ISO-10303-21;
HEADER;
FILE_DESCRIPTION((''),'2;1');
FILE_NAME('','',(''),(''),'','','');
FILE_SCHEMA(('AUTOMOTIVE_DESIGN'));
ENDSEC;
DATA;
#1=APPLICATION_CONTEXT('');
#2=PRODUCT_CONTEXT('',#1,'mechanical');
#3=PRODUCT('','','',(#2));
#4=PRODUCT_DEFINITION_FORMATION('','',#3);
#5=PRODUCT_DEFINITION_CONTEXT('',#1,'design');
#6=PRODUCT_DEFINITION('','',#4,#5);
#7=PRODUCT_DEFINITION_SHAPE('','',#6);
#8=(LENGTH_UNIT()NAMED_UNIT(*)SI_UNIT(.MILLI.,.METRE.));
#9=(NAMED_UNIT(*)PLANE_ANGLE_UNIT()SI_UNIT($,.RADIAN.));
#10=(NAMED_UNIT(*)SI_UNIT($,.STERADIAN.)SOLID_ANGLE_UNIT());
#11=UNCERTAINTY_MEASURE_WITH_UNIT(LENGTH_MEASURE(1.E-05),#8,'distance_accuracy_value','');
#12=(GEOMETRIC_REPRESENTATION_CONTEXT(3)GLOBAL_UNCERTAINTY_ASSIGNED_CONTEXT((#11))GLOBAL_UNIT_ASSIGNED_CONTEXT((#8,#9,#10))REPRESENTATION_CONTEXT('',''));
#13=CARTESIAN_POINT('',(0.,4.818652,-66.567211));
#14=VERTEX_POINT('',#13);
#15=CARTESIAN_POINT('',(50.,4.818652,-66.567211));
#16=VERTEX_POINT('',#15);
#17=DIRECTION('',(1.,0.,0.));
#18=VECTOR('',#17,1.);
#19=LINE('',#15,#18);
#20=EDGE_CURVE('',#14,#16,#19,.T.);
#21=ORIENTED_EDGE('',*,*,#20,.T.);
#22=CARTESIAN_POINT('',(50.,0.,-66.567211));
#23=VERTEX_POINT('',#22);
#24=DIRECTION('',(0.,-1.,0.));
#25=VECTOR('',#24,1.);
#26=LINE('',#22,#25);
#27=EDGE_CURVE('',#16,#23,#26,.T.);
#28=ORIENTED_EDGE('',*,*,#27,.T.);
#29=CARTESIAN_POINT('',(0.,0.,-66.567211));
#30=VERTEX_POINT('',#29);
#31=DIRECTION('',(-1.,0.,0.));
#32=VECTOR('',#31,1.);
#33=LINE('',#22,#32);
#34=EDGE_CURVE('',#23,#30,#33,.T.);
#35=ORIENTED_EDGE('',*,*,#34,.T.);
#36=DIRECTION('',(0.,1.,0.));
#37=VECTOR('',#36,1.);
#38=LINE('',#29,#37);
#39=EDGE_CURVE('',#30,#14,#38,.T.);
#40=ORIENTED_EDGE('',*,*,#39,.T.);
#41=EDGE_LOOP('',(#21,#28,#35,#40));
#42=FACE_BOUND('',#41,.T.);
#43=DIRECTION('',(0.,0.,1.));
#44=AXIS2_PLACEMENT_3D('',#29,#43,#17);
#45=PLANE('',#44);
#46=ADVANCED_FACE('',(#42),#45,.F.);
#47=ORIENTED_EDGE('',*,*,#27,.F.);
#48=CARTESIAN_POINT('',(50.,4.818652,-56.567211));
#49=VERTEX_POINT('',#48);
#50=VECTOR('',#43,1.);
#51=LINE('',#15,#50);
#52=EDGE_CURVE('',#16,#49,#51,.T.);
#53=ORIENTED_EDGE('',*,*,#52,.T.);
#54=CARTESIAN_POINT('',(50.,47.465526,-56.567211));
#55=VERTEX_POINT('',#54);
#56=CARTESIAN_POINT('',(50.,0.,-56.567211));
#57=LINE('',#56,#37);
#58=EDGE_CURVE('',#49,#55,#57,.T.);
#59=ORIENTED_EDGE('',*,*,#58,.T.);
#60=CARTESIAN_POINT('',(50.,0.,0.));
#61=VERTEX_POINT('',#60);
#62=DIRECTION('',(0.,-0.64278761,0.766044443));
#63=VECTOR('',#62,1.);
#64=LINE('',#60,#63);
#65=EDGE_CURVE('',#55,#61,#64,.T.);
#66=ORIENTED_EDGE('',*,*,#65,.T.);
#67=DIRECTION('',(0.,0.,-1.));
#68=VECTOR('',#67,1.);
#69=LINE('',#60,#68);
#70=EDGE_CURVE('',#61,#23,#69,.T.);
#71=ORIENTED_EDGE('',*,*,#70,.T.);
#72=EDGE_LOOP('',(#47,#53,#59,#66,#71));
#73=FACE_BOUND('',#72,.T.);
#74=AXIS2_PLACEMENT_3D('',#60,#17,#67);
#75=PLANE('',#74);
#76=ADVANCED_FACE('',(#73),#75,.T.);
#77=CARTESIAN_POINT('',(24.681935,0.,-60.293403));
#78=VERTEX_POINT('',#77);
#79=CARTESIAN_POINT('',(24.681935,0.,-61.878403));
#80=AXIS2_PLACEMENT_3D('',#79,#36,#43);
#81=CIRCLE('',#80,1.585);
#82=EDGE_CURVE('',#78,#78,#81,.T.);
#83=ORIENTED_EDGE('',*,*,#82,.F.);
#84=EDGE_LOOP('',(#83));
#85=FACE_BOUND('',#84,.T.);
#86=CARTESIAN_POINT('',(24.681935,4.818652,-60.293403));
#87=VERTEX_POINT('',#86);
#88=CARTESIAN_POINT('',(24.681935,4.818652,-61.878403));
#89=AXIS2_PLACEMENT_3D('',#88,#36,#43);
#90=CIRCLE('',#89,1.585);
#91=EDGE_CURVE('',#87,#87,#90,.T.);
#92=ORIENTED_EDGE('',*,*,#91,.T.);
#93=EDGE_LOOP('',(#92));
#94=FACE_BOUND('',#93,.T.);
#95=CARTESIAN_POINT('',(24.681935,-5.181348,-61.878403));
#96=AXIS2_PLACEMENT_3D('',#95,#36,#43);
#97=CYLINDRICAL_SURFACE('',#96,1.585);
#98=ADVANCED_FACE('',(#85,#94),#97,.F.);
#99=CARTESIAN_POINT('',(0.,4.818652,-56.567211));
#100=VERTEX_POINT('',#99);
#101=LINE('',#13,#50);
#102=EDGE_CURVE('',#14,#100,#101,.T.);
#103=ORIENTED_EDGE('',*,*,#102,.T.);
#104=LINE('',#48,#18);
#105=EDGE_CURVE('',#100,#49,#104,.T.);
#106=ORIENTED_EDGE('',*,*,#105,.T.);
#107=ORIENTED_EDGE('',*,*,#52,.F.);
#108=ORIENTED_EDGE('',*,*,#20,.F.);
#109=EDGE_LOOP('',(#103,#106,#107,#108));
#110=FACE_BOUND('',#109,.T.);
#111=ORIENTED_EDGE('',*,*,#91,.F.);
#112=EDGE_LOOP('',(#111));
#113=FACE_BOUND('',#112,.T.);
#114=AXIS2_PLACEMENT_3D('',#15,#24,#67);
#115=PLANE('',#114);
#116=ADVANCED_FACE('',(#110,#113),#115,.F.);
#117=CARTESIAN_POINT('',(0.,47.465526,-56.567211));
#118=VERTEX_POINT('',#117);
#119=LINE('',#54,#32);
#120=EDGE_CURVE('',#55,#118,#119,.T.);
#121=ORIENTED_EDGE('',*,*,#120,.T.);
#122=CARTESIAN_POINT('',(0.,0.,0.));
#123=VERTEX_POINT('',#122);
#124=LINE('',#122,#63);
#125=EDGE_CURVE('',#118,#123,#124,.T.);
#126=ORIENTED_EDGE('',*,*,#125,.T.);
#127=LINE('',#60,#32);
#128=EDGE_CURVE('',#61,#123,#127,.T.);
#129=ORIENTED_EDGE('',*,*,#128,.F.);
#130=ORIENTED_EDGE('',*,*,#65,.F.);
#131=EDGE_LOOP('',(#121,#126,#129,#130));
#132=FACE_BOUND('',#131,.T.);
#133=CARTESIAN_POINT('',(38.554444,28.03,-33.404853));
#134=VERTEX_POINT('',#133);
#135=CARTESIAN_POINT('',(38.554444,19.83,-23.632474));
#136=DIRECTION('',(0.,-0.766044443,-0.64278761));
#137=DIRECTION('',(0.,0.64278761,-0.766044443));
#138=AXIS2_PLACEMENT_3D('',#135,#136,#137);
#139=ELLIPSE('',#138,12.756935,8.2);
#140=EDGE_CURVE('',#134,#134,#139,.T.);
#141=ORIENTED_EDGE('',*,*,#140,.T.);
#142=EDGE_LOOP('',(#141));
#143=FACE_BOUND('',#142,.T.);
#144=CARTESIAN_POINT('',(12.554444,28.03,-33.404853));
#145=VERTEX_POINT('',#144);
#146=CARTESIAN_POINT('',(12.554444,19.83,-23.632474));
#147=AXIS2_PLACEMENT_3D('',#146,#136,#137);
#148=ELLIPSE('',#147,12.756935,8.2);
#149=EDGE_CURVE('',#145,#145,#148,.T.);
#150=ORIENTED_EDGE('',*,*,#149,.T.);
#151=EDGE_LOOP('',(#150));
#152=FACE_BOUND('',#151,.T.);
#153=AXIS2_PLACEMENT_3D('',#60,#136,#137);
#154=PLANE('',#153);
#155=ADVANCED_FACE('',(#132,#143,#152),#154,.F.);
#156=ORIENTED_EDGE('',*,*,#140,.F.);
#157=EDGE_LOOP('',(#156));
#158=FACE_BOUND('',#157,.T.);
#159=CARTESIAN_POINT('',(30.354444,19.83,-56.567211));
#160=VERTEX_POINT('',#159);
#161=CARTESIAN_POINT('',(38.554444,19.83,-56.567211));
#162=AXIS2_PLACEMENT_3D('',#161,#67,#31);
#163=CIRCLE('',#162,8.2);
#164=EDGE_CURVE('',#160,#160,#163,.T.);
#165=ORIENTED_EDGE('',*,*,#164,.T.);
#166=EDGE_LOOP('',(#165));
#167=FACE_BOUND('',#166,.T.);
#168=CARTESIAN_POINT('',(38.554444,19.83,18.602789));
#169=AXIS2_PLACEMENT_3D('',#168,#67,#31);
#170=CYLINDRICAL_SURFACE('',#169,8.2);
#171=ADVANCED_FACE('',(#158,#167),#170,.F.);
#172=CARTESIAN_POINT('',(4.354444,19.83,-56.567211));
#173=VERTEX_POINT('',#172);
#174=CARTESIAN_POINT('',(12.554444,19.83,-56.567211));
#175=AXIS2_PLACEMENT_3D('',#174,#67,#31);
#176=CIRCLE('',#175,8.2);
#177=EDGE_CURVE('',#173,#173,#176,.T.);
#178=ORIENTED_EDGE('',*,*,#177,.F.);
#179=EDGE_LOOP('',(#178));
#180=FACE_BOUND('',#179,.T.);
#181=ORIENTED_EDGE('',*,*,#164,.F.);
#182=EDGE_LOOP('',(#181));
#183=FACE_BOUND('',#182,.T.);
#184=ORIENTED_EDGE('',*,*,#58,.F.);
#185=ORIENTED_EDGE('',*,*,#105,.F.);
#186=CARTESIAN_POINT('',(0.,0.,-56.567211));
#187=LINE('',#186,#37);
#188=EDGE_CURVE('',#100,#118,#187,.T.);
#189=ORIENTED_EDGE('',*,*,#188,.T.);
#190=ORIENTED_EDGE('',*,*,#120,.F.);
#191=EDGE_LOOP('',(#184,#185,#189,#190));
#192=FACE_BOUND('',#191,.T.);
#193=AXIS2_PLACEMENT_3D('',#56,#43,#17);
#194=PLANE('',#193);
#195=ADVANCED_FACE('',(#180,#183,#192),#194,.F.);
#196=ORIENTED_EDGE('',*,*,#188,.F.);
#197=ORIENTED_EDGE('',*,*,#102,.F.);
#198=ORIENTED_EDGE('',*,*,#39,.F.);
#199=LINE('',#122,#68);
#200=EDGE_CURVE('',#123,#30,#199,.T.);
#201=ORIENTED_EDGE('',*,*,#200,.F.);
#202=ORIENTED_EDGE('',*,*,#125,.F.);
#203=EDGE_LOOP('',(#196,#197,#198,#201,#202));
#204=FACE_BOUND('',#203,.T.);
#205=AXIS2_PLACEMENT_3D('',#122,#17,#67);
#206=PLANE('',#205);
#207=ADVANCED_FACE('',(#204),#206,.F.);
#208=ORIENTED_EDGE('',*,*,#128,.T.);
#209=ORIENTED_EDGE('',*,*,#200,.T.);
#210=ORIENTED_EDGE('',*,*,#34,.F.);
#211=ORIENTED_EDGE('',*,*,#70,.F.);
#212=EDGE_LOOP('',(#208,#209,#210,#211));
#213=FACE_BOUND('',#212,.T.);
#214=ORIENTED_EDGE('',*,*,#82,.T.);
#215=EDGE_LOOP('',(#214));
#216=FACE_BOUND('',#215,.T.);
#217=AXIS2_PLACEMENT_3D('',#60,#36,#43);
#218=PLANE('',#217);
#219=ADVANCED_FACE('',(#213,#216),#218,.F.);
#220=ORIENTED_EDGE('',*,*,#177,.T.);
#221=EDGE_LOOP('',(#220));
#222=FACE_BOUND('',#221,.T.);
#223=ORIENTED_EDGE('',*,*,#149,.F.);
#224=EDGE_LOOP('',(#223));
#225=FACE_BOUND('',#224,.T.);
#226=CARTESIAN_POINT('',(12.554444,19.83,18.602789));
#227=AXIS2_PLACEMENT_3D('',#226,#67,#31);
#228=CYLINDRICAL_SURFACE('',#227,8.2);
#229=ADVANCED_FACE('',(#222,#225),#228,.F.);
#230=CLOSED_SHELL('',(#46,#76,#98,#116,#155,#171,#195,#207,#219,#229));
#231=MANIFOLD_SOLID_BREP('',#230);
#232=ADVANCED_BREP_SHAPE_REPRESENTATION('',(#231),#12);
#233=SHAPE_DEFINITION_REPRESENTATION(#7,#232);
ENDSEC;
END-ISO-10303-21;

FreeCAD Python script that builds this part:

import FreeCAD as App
import Part
import Sketcher
Q = App.Units.Quantity

doc = App.newDocument("Part")
body = doc.addObject("PartDesign::Body", "Body")

# Sketch on YZ plane
sketch1 = doc.addObject("Sketcher::SketchObject", "Sketch")
body.addObject(sketch1)
sketch1.AttachmentSupport = (doc.YZ_Plane, [""])
sketch1.MapMode = "FlatFace"
sketch1.addGeometry([
    Part.LineSegment(App.Vector(0, 0, 0), App.Vector(0, -57, 0)),
    Part.LineSegment(App.Vector(0, -57, 0), App.Vector(47, -57, 0)),
    Part.LineSegment(App.Vector(47, -57, 0), App.Vector(0, 0, 0)),
], False)
sketch1.addConstraint([
    Sketcher.Constraint("Coincident", 0, 2, 1, 1),
    Sketcher.Constraint("Coincident", 1, 2, 2, 1),
    Sketcher.Constraint("Coincident", 2, 2, 0, 1),
    Sketcher.Constraint("Vertical", 0),
    Sketcher.Constraint("Horizontal", 1),
    Sketcher.Constraint("Coincident", 2, 2, -1, 1),
    Sketcher.Constraint("Angle", 2, Q("130 deg")),
    Sketcher.Constraint("DistanceY", 0, 2, 0, 1, Q("56.567211 mm")),
])
pad1 = doc.addObject("PartDesign::Pad", "Pad")
body.addObject(pad1)
pad1.Profile = sketch1
pad1.Length = 50

# Sketch on XY plane
sketch2 = doc.addObject("Sketcher::SketchObject", "Sketch001")
body.addObject(sketch2)
sketch2.AttachmentSupport = (doc.XY_Plane, [""])
sketch2.MapMode = "FlatFace"
sketch2.AttachmentOffset = App.Placement(App.Vector(0, 0, -56.567211), App.Rotation())
sketch2.addGeometry([
    Part.Circle(App.Vector(39, 20, 0), App.Vector(0, 0, 1), 8),
    Part.Circle(App.Vector(13, 20, 0), App.Vector(0, 0, 1), 8),
], False)
sketch2.addConstraint([
    Sketcher.Constraint("Equal", 0, 1),
    Sketcher.Constraint("Horizontal", 0, 3, 1, 3),
    Sketcher.Constraint("Diameter", 0, Q("16.4 mm")),
    Sketcher.Constraint("DistanceX", 1, 3, 0, 3, Q("26 mm")),
    Sketcher.Constraint("DistanceY", -1, 1, 0, 3, Q("19.83 mm")),
    Sketcher.Constraint("DistanceX", -1, 1, 0, 3, Q("38.554444 mm")),
])
pocket1 = doc.addObject("PartDesign::Pocket", "Pocket")
body.addObject(pocket1)
pocket1.Profile = sketch2
pocket1.Length = 75.17
pocket1.Reversed = True

# Sketch on XY plane
sketch3 = doc.addObject("Sketcher::SketchObject", "Sketch002")
body.addObject(sketch3)
sketch3.AttachmentSupport = (doc.XY_Plane, [""])
sketch3.MapMode = "FlatFace"
sketch3.AttachmentOffset = App.Placement(App.Vector(0, 0, -56.567211), App.Rotation())
sketch3.addGeometry([
    Part.LineSegment(App.Vector(50, 4.8, 0), App.Vector(50, 0, 0)),
    Part.LineSegment(App.Vector(50, 0, 0), App.Vector(0, 0, 0)),
    Part.LineSegment(App.Vector(0, 0, 0), App.Vector(0, 4.8, 0)),
    Part.LineSegment(App.Vector(0, 4.8, 0), App.Vector(50, 4.8, 0)),
], False)
sketch3.addConstraint([
    Sketcher.Constraint("Coincident", 0, 2, 1, 1),
    Sketcher.Constraint("Coincident", 1, 2, 2, 1),
    Sketcher.Constraint("Coincident", 2, 2, 3, 1),
    Sketcher.Constraint("Coincident", 3, 2, 0, 1),
    Sketcher.Constraint("Vertical", 0),
    Sketcher.Constraint("Horizontal", 1),
    Sketcher.Constraint("Vertical", 2),
    Sketcher.Constraint("Horizontal", 3),
    Sketcher.Constraint("Coincident", 1, 2, -1, 1),
    Sketcher.Constraint("DistanceX", 1, 2, 1, 1, Q("50 mm")),
    Sketcher.Constraint("DistanceY", 0, 2, 0, 1, Q("4.818652 mm")),
])
pad2 = doc.addObject("PartDesign::Pad", "Pad001")
body.addObject(pad2)
pad2.Profile = sketch3
pad2.Length = 10
pad2.Reversed = True

# Sketch on XZ plane
sketch4 = doc.addObject("Sketcher::SketchObject", "Sketch003")
body.addObject(sketch4)
sketch4.AttachmentSupport = (doc.XZ_Plane, [""])
sketch4.MapMode = "FlatFace"
sketch4.AttachmentOffset = App.Placement(App.Vector(0, 0, -4.818652), App.Rotation())
sketch4.addGeometry(Part.Circle(App.Vector(24.7, -61.9, 0), App.Vector(0, 0, 1), 1.6), False)
sketch4.addConstraint([
    Sketcher.Constraint("Diameter", 0, Q("3.17 mm")),
    Sketcher.Constraint("DistanceX", -1, 1, 0, 3, Q("24.681935 mm")),
    Sketcher.Constraint("DistanceY", 0, 3, -1, 1, Q("61.878403 mm")),
])
pocket2 = doc.addObject("PartDesign::Pocket", "Pocket001")
body.addObject(pocket2)
pocket2.Profile = sketch4
pocket2.Length = 10
pocket2.Reversed = True

doc.recompute()
